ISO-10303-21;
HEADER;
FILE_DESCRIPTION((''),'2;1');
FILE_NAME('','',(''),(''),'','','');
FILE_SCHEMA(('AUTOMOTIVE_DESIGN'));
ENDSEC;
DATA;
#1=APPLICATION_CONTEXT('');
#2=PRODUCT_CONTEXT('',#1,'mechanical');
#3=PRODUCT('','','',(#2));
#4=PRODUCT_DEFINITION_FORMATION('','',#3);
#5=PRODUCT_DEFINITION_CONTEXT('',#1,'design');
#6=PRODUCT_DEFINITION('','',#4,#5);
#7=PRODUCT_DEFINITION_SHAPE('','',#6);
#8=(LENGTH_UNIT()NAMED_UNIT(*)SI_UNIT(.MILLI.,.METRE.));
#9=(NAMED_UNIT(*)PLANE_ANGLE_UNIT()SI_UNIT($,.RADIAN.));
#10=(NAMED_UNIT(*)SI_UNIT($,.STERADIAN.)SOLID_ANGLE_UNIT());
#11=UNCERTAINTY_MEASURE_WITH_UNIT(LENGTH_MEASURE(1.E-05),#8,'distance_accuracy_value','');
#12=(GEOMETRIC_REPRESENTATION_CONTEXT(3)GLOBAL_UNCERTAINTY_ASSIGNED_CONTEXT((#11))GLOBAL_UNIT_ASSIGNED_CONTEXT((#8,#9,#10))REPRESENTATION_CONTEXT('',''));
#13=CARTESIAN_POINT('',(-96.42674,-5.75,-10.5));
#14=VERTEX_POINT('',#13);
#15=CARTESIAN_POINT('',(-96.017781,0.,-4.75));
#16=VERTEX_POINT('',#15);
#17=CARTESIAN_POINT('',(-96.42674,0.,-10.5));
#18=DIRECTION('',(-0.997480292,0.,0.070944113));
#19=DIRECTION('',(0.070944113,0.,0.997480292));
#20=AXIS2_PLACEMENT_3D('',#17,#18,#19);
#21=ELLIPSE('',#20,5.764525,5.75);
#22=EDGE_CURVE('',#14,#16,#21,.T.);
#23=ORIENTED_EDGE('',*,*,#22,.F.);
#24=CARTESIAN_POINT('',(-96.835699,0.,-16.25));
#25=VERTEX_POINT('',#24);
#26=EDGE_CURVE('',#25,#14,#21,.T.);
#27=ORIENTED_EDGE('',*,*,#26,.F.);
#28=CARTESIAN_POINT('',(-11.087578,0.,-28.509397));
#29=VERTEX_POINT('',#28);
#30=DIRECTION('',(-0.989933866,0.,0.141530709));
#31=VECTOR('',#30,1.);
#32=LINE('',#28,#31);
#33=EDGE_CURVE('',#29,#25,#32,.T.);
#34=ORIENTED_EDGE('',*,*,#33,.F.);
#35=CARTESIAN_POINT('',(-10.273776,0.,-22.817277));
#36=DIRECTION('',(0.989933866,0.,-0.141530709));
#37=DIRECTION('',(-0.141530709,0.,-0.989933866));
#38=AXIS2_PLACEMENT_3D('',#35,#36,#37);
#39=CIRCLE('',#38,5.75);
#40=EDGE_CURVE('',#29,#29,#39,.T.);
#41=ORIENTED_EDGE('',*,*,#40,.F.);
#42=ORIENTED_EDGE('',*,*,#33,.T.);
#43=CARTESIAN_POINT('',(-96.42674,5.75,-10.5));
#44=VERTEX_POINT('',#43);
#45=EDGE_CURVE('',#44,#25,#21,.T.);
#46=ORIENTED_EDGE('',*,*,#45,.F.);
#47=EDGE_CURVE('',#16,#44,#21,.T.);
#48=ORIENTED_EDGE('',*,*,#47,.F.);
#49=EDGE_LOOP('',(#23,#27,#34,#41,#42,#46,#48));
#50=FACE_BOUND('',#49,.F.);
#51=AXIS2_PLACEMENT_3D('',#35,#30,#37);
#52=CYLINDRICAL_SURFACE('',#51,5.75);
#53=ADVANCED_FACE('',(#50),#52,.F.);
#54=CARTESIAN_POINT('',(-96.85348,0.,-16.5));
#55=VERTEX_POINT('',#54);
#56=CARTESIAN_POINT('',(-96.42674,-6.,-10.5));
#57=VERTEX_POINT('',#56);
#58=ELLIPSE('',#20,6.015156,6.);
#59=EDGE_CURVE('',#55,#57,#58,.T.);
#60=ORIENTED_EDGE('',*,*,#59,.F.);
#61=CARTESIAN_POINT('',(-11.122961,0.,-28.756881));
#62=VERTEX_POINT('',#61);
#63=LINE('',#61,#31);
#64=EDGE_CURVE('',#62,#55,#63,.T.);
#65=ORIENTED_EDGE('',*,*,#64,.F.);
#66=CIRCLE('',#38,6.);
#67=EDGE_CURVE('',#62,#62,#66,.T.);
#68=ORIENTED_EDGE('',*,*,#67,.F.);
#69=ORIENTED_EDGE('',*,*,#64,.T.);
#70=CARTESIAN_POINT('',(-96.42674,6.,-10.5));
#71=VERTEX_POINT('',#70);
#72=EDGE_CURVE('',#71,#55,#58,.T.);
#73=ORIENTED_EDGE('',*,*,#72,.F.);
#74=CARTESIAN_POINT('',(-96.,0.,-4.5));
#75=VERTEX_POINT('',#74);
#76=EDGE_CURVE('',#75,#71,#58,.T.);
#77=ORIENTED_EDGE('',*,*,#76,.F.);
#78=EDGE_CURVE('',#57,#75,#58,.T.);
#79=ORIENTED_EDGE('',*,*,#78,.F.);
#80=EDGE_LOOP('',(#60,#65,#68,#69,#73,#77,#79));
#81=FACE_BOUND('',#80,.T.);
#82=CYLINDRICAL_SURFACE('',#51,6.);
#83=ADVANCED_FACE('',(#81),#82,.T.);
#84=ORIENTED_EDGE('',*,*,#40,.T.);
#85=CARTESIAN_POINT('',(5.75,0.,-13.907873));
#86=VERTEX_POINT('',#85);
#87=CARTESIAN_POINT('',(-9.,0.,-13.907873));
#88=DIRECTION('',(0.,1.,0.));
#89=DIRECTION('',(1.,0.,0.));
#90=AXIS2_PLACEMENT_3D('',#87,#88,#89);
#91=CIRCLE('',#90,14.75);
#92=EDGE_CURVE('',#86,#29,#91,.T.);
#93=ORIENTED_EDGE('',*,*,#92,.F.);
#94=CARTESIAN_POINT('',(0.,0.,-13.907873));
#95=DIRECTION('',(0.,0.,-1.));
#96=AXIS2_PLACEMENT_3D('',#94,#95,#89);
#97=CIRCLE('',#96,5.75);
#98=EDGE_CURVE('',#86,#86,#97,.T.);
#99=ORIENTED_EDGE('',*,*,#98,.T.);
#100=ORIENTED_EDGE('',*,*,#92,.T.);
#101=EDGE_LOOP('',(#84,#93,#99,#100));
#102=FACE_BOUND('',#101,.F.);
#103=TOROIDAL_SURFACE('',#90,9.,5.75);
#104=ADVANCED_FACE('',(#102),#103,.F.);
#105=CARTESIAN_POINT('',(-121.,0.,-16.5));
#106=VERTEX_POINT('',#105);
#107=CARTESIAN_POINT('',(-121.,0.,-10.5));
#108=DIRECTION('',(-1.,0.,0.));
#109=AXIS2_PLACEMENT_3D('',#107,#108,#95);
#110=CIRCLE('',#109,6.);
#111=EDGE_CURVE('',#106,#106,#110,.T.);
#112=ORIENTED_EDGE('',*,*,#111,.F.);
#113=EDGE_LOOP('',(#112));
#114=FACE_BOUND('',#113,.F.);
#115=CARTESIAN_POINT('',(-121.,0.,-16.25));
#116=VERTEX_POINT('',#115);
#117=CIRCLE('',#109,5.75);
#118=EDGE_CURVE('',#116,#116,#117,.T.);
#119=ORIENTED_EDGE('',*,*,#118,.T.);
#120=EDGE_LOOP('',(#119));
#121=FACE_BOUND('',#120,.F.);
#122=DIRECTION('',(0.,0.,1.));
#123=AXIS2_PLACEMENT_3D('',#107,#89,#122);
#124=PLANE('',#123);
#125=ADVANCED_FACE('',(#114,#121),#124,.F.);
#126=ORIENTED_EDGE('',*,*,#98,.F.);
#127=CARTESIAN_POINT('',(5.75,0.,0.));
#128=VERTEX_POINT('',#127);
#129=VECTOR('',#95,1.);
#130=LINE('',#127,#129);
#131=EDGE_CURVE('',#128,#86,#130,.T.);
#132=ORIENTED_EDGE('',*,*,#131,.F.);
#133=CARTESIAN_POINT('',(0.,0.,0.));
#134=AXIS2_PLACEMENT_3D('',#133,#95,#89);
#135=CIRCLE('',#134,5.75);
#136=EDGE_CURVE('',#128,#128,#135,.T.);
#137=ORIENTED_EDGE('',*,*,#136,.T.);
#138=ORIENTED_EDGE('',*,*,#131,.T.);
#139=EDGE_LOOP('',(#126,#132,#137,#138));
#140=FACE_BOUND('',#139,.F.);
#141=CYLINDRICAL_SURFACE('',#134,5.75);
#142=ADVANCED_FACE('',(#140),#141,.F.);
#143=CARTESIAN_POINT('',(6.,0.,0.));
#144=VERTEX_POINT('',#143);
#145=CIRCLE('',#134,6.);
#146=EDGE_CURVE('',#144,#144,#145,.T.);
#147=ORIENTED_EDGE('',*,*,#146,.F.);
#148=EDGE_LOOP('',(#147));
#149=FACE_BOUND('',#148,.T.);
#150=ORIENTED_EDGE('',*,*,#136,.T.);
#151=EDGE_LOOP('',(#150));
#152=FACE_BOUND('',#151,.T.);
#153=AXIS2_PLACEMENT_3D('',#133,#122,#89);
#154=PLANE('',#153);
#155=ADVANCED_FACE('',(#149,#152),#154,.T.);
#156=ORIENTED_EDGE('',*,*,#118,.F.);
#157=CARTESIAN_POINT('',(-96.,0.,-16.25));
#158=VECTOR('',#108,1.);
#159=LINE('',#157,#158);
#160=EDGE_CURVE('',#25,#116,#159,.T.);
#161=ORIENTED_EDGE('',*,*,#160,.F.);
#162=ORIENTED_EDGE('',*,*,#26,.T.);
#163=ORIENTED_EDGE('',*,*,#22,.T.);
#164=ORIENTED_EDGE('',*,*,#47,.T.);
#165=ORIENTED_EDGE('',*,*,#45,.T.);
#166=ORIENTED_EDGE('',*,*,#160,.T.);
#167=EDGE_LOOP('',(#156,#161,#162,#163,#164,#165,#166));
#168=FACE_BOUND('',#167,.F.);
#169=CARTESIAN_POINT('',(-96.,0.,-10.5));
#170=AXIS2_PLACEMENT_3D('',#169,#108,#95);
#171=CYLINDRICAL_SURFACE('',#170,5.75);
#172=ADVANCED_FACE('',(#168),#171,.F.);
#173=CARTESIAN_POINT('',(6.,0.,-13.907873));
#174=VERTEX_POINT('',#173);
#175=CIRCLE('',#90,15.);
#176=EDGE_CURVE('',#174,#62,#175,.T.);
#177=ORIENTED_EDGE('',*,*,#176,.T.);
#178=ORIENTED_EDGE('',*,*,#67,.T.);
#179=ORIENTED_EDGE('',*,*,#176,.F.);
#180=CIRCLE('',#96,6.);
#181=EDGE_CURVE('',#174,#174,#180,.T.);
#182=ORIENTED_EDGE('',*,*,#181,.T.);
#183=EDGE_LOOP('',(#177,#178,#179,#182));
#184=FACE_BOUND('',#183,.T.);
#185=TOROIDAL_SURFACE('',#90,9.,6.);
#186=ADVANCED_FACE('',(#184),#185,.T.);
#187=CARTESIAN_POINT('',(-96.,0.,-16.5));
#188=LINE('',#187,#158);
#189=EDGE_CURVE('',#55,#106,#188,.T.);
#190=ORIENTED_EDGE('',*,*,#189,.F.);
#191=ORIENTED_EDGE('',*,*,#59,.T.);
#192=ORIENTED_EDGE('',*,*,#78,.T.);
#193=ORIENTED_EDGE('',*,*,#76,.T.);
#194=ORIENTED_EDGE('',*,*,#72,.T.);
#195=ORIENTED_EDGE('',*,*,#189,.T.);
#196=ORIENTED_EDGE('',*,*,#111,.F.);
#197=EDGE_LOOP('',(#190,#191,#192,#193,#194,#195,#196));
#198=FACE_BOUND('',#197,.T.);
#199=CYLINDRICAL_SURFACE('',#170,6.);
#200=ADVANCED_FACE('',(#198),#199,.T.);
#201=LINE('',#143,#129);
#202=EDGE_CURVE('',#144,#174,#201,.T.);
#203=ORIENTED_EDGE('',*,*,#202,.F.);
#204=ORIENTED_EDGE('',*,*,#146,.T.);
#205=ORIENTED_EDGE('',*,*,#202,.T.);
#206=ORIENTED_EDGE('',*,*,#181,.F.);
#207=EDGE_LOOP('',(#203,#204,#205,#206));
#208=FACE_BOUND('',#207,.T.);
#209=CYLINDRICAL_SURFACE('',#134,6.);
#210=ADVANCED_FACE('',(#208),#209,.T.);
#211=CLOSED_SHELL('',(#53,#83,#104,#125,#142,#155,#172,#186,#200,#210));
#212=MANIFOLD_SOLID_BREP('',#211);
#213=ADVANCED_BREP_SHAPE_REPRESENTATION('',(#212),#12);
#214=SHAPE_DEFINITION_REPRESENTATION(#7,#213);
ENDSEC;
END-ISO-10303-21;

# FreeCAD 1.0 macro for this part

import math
import FreeCAD as App
import Part
import Sketcher
from FreeCAD import Vector

doc = App.newDocument("Part")
body = doc.addObject("PartDesign::Body", "Body")

# Sketch on XY plane
sketch1 = doc.addObject("Sketcher::SketchObject", "Sketch")
body.addObject(sketch1)
sketch1.AttachmentSupport = (doc.XY_Plane, [""])
sketch1.MapMode = "FlatFace"
sketch1.addGeometry([
    Part.Circle(Vector(0, 0, 0), Vector(0, 0, 1), 6),
    Part.Circle(Vector(0, 0, 0), Vector(0, 0, 1), 6),
], False)
sketch1.addConstraint([
    Sketcher.Constraint("Coincident", 0, 3, -1, 1),
    Sketcher.Constraint("Coincident", 1, 3, -1, 1),
    Sketcher.Constraint("Diameter", 0, 12.0),
    Sketcher.Constraint("Diameter", 1, 11.5),
])

# Sketch on XZ plane
sketch2 = doc.addObject("Sketcher::SketchObject", "Sketch001")
body.addObject(sketch2)
sketch2.AttachmentSupport = (doc.XZ_Plane, [""])
sketch2.MapMode = "FlatFace"
sketch2.addGeometry([
    Part.LineSegment(Vector(-6, 0, 0), Vector(-6, -13.907873, 0)),
    Part.ArcOfCircle(Part.Circle(Vector(-9, -13.907873, 0), Vector(0, 0, 1), 3), math.radians(-98.136431), math.radians(0)),
    Part.LineSegment(Vector(-9.424592, -16.877674, 0), Vector(-96, -4.5, 0)),
    Part.LineSegment(Vector(-96, -4.5, 0), Vector(-121, -4.5, 0)),
], False)
sketch2.addConstraint([
    Sketcher.Constraint("Coincident", 0, 2, 1, 2),
    Sketcher.Constraint("Coincident", 1, 1, 2, 1),
    Sketcher.Constraint("Coincident", 2, 2, 3, 1),
    Sketcher.Constraint("Vertical", 0),
    Sketcher.Constraint("Horizontal", 3),
    Sketcher.Constraint("PointOnObject", 0, 1, -1),
    Sketcher.Constraint("Radius", 1, 3.0),
    Sketcher.Constraint("DistanceX", 3, 2, 3, 1, 25.0),
    Sketcher.Constraint("DistanceX", 1, 3, -1, 1, 9.0),
    Sketcher.Constraint("DistanceX", 2, 2, -1, 1, 96.0),
    Sketcher.Constraint("DistanceY", 2, 2, -1, 1, 4.5),
    Sketcher.Constraint("DistanceY", 1, 1, 1, 3, 2.969802),
    Sketcher.Constraint("DistanceY", 1, 1, 0, 2, 2.969802),
    Sketcher.Constraint("Distance", 2, 87.455749),
])
doc.recompute()

additivepipe = doc.addObject("PartDesign::AdditivePipe", "AdditivePipe")
body.addObject(additivepipe)
additivepipe.Profile = sketch1
additivepipe.Spine = (sketch2, ["Edge1", "Edge2", "Edge3", "Edge4"])
additivepipe.Transition = "Right corner"

doc.recompute()
